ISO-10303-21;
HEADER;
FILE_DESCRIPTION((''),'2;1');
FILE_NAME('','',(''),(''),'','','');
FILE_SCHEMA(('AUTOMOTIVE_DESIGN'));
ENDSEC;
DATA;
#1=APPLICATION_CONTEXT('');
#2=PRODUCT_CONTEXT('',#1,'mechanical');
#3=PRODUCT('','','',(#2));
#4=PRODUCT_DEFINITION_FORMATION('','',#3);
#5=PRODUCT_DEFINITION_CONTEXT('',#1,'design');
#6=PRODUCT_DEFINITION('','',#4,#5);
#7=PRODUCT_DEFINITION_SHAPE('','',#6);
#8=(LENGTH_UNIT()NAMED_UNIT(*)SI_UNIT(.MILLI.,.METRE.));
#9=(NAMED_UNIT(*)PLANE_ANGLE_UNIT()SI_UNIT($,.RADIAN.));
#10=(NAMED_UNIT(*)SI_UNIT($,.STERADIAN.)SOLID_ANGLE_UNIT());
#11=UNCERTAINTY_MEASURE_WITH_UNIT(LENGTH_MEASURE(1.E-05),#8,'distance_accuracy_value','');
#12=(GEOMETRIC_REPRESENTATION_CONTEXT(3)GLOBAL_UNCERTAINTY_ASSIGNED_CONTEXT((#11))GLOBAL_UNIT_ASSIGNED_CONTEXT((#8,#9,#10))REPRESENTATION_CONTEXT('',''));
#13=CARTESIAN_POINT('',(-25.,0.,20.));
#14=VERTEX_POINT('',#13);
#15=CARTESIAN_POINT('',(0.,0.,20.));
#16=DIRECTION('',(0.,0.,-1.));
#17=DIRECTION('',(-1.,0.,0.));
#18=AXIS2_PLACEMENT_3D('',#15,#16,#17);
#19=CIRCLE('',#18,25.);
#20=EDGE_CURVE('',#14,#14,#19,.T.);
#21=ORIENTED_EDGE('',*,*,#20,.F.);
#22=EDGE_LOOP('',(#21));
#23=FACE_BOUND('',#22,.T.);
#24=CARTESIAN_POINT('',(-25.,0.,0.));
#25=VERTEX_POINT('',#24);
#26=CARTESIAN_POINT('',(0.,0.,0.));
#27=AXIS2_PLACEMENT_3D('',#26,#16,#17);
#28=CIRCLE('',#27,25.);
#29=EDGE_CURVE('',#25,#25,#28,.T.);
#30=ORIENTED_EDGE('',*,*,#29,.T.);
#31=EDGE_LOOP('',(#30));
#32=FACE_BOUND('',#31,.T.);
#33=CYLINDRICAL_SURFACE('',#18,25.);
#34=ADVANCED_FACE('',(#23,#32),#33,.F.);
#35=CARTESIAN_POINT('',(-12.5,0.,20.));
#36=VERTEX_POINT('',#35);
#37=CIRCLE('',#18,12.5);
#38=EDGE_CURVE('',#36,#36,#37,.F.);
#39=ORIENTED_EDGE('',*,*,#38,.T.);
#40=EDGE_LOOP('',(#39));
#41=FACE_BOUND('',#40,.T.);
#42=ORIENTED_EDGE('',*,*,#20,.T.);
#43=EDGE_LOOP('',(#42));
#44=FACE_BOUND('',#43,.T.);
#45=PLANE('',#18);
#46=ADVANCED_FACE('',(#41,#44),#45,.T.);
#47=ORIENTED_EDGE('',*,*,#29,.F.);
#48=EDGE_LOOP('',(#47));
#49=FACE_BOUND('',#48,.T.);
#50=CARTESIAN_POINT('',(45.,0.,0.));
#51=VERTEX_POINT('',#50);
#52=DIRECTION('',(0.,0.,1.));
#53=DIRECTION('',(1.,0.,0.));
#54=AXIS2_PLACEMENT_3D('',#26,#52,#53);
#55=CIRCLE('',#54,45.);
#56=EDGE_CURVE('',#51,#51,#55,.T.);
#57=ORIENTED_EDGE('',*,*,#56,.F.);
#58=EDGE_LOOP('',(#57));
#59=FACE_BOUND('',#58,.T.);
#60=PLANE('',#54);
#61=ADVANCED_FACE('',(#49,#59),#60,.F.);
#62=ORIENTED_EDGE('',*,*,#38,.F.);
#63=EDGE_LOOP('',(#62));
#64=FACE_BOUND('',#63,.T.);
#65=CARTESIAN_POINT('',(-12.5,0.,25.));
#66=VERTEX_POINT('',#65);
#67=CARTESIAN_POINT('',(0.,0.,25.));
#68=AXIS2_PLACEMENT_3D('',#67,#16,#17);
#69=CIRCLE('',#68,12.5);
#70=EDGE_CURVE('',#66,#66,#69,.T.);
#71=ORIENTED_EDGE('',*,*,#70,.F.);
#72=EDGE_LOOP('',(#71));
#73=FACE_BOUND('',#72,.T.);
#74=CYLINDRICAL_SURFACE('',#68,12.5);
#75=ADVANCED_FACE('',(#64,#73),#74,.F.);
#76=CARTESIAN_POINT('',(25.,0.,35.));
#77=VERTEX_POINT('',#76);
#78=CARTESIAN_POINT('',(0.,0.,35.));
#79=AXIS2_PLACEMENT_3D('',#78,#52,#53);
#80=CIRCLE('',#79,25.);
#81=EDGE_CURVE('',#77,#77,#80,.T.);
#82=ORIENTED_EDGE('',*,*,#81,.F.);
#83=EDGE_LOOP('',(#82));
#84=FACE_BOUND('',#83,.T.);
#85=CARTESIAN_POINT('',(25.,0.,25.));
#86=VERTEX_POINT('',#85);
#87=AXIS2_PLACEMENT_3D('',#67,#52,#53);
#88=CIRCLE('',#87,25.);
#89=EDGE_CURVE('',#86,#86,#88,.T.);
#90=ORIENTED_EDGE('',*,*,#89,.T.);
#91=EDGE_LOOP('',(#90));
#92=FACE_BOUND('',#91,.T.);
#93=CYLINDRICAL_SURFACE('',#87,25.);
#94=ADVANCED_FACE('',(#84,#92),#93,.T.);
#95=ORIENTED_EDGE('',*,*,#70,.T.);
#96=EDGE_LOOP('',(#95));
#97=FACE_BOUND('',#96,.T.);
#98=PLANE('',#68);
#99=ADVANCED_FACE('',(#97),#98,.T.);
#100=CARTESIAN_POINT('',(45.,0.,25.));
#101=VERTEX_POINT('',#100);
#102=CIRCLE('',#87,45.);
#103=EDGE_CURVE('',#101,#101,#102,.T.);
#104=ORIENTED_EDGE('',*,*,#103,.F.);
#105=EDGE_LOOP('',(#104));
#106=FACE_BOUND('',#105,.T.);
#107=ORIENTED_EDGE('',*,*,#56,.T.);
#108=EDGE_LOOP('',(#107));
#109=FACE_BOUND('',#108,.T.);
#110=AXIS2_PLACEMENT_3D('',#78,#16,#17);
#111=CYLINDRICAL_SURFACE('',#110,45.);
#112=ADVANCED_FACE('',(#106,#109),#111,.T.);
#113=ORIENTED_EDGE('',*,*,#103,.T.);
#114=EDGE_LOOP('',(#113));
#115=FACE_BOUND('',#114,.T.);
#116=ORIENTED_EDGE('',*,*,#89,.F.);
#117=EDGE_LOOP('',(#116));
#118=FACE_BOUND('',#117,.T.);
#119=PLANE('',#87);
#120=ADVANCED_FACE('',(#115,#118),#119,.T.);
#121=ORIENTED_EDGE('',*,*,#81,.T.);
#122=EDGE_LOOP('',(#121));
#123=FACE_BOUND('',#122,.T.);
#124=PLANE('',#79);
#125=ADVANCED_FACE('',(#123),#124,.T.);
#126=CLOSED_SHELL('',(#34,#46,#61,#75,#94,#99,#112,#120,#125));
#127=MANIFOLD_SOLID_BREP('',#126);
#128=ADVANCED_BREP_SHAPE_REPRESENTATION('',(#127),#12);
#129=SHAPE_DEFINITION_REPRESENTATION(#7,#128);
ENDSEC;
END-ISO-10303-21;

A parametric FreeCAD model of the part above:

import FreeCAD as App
import Part
import Sketcher
from FreeCAD import Vector
Q = App.Units.Quantity

doc = App.newDocument("Part")
params = doc.addObject("Spreadsheet::Sheet", "Params")
for row, (alias, value) in enumerate([
    ("sketch1_diameter", "90 mm"),
    ("pad1_length", "35 mm"),
    ("sketch2_diameter", "25 mm"),
    ("pocket1_length", "25 mm"),
    ("sketch3_diameter", "90 mm"),
    ("sketch3_diameter2", "50 mm"),
    ("pocket2_length", "10 mm"),
    ("sketch4_diameter", "50 mm"),
    ("pocket3_length", "20 mm"),
], start=1):
    params.set(f"A{row}", alias)
    params.set(f"B{row}", "=" + value)
    params.setAlias(f"B{row}", alias)

body = doc.addObject("PartDesign::Body", "Body")

# Sketch on XY plane
sketch1 = doc.addObject("Sketcher::SketchObject", "Sketch")
body.addObject(sketch1)
sketch1.AttachmentSupport = (doc.XY_Plane, [""])
sketch1.MapMode = "FlatFace"
sketch1.addGeometry(Part.Circle(Vector(0, 0, 0), Vector(0, 0, 1), 45), False)
sketch1.addConstraint([
    Sketcher.Constraint("Coincident", 0, 3, -1, 1),
    Sketcher.Constraint("Diameter", 0, Q("90 mm")),
])
sketch1.setExpression("Constraints[1]", "Params.sketch1_diameter")
pad1 = doc.addObject("PartDesign::Pad", "Pad")
body.addObject(pad1)
pad1.Profile = sketch1
pad1.setExpression("Length", "Params.pad1_length")

# Sketch on XY plane
sketch2 = doc.addObject("Sketcher::SketchObject", "Sketch001")
body.addObject(sketch2)
sketch2.AttachmentSupport = (doc.XY_Plane, [""])
sketch2.MapMode = "FlatFace"
sketch2.addGeometry(Part.Circle(Vector(0, 0, 0), Vector(0, 0, 1), 12), False)
sketch2.addConstraint([
    Sketcher.Constraint("Coincident", 0, 3, -1, 1),
    Sketcher.Constraint("Diameter", 0, Q("25 mm")),
])
sketch2.setExpression("Constraints[1]", "Params.sketch2_diameter")
pocket1 = doc.addObject("PartDesign::Pocket", "Pocket")
body.addObject(pocket1)
pocket1.Profile = sketch2
pocket1.setExpression("Length", "Params.pocket1_length")
pocket1.Reversed = True

# Sketch on XY plane
sketch3 = doc.addObject("Sketcher::SketchObject", "Sketch002")
body.addObject(sketch3)
sketch3.AttachmentSupport = (doc.XY_Plane, [""])
sketch3.MapMode = "FlatFace"
sketch3.AttachmentOffset = App.Placement(Vector(0, 0, 25), App.Rotation())
sketch3.addGeometry([
    Part.Circle(Vector(0, 0, 0), Vector(0, 0, 1), 45),
    Part.Circle(Vector(0, 0, 0), Vector(0, 0, 1), 25),
], False)
sketch3.addConstraint([
    Sketcher.Constraint("Coincident", 0, 3, -1, 1),
    Sketcher.Constraint("Coincident", 1, 3, -1, 1),
    Sketcher.Constraint("Diameter", 0, Q("90 mm")),
    Sketcher.Constraint("Diameter", 1, Q("50 mm")),
])
sketch3.setExpression("Constraints[2]", "Params.sketch3_diameter")
sketch3.setExpression("Constraints[3]", "Params.sketch3_diameter2")
pocket2 = doc.addObject("PartDesign::Pocket", "Pocket001")
body.addObject(pocket2)
pocket2.Profile = sketch3
pocket2.setExpression("Length", "Params.pocket2_length")
pocket2.Reversed = True

# Sketch on XY plane
sketch4 = doc.addObject("Sketcher::SketchObject", "Sketch003")
body.addObject(sketch4)
sketch4.AttachmentSupport = (doc.XY_Plane, [""])
sketch4.MapMode = "FlatFace"
sketch4.addGeometry(Part.Circle(Vector(0, 0, 0), Vector(0, 0, 1), 25), False)
sketch4.addConstraint([
    Sketcher.Constraint("Coincident", 0, 3, -1, 1),
    Sketcher.Constraint("Diameter", 0, Q("50 mm")),
])
sketch4.setExpression("Constraints[1]", "Params.sketch4_diameter")
pocket3 = doc.addObject("PartDesign::Pocket", "Pocket002")
body.addObject(pocket3)
pocket3.Profile = sketch4
pocket3.setExpression("Length", "Params.pocket3_length")
pocket3.Reversed = True

doc.recompute()
